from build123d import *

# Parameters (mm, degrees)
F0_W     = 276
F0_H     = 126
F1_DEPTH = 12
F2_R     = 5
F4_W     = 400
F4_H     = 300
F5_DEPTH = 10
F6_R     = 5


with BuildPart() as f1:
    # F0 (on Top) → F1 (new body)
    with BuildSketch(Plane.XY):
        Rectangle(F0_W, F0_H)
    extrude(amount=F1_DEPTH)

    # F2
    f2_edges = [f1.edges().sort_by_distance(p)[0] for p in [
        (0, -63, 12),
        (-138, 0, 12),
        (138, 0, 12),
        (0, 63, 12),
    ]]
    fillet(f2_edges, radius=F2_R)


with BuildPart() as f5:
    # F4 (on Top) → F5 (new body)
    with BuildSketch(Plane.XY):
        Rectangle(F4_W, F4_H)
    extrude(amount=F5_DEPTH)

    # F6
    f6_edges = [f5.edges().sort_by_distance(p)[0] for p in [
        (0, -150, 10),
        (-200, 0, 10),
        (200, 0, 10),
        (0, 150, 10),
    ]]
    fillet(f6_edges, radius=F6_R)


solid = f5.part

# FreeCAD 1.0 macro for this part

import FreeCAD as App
import Part
import Sketcher
Q = App.Units.Quantity


def edges_at(feature, points):
    """Names of the edges that pass closest to the given points."""
    edges = feature.Shape.Edges
    near = lambda p: min(range(len(edges)), key=lambda i: edges[i].distToShape(Part.Vertex(*p))[0])
    return sorted({f"Edge{near(p) + 1}" for p in points})


def add_polygon(sketch, points):
    """Adds a closed chain of lines whose ends are joined by coincident constraints."""
    first, n = sketch.GeometryCount, len(points)
    for a, b in zip(points, points[1:] + points[:1]):
        sketch.addGeometry(Part.LineSegment(App.Vector(*a, 0), App.Vector(*b, 0)), False)
    for i in range(n):
        sketch.addConstraint(Sketcher.Constraint("Coincident", first + i, 2, first + (i + 1) % n, 1))

doc = App.newDocument("Part")
body = doc.addObject("PartDesign::Body", "Body")

sketch1 = body.newObject("Sketcher::SketchObject", "Sketch")
sketch1.AttachmentSupport = (doc.getObject("XY_Plane"), [""])
sketch1.MapMode = "FlatFace"
add_polygon(sketch1, [(-138, 63), (-138, -63), (138, -63), (138, 63)])
sketch1.addConstraint([
    Sketcher.Constraint("Vertical", 0),
    Sketcher.Constraint("Horizontal", 1),
    Sketcher.Constraint("Vertical", 2),
    Sketcher.Constraint("Horizontal", 3),
    Sketcher.Constraint("Symmetric", 0, 2, 2, 2, -1, 1),
    Sketcher.Constraint("DistanceX", 1, 1, 1, 2, Q("276 mm")),
    Sketcher.Constraint("DistanceY", 0, 2, 0, 1, Q("126 mm")),
])
pad1 = body.newObject("PartDesign::Pad", "Pad")
pad1.Profile = sketch1
pad1.Length = 12
doc.recompute()

fillet = body.newObject("PartDesign::Fillet", "Fillet")
fillet.Base = (pad1, edges_at(pad1, [
    (0, -63, 12),
    (-138, 0, 12),
    (138, 0, 12),
    (0, 63, 12),
]))
fillet.Radius = 5
body2 = doc.addObject("PartDesign::Body", "Body001")

sketch2 = body2.newObject("Sketcher::SketchObject", "Sketch001")
sketch2.AttachmentSupport = (doc.getObject("XY_Plane001"), [""])
sketch2.MapMode = "FlatFace"
add_polygon(sketch2, [(-200, 150), (-200, -150), (200, -150), (200, 150)])
sketch2.addConstraint([
    Sketcher.Constraint("Vertical", 0),
    Sketcher.Constraint("Horizontal", 1),
    Sketcher.Constraint("Vertical", 2),
    Sketcher.Constraint("Horizontal", 3),
    Sketcher.Constraint("Symmetric", 0, 2, 2, 2, -1, 1),
    Sketcher.Constraint("DistanceX", 1, 1, 1, 2, Q("400 mm")),
    Sketcher.Constraint("DistanceY", 0, 2, 0, 1, Q("300 mm")),
])
pad2 = body2.newObject("PartDesign::Pad", "Pad001")
pad2.Profile = sketch2
pad2.Length = 10
doc.recompute()

fillet2 = body2.newObject("PartDesign::Fillet", "Fillet001")
fillet2.Base = (pad2, edges_at(pad2, [
    (0, -150, 10),
    (-200, 0, 10),
    (200, 0, 10),
    (0, 150, 10),
]))
fillet2.Radius = 5
body.Visibility = False

doc.recompute()
